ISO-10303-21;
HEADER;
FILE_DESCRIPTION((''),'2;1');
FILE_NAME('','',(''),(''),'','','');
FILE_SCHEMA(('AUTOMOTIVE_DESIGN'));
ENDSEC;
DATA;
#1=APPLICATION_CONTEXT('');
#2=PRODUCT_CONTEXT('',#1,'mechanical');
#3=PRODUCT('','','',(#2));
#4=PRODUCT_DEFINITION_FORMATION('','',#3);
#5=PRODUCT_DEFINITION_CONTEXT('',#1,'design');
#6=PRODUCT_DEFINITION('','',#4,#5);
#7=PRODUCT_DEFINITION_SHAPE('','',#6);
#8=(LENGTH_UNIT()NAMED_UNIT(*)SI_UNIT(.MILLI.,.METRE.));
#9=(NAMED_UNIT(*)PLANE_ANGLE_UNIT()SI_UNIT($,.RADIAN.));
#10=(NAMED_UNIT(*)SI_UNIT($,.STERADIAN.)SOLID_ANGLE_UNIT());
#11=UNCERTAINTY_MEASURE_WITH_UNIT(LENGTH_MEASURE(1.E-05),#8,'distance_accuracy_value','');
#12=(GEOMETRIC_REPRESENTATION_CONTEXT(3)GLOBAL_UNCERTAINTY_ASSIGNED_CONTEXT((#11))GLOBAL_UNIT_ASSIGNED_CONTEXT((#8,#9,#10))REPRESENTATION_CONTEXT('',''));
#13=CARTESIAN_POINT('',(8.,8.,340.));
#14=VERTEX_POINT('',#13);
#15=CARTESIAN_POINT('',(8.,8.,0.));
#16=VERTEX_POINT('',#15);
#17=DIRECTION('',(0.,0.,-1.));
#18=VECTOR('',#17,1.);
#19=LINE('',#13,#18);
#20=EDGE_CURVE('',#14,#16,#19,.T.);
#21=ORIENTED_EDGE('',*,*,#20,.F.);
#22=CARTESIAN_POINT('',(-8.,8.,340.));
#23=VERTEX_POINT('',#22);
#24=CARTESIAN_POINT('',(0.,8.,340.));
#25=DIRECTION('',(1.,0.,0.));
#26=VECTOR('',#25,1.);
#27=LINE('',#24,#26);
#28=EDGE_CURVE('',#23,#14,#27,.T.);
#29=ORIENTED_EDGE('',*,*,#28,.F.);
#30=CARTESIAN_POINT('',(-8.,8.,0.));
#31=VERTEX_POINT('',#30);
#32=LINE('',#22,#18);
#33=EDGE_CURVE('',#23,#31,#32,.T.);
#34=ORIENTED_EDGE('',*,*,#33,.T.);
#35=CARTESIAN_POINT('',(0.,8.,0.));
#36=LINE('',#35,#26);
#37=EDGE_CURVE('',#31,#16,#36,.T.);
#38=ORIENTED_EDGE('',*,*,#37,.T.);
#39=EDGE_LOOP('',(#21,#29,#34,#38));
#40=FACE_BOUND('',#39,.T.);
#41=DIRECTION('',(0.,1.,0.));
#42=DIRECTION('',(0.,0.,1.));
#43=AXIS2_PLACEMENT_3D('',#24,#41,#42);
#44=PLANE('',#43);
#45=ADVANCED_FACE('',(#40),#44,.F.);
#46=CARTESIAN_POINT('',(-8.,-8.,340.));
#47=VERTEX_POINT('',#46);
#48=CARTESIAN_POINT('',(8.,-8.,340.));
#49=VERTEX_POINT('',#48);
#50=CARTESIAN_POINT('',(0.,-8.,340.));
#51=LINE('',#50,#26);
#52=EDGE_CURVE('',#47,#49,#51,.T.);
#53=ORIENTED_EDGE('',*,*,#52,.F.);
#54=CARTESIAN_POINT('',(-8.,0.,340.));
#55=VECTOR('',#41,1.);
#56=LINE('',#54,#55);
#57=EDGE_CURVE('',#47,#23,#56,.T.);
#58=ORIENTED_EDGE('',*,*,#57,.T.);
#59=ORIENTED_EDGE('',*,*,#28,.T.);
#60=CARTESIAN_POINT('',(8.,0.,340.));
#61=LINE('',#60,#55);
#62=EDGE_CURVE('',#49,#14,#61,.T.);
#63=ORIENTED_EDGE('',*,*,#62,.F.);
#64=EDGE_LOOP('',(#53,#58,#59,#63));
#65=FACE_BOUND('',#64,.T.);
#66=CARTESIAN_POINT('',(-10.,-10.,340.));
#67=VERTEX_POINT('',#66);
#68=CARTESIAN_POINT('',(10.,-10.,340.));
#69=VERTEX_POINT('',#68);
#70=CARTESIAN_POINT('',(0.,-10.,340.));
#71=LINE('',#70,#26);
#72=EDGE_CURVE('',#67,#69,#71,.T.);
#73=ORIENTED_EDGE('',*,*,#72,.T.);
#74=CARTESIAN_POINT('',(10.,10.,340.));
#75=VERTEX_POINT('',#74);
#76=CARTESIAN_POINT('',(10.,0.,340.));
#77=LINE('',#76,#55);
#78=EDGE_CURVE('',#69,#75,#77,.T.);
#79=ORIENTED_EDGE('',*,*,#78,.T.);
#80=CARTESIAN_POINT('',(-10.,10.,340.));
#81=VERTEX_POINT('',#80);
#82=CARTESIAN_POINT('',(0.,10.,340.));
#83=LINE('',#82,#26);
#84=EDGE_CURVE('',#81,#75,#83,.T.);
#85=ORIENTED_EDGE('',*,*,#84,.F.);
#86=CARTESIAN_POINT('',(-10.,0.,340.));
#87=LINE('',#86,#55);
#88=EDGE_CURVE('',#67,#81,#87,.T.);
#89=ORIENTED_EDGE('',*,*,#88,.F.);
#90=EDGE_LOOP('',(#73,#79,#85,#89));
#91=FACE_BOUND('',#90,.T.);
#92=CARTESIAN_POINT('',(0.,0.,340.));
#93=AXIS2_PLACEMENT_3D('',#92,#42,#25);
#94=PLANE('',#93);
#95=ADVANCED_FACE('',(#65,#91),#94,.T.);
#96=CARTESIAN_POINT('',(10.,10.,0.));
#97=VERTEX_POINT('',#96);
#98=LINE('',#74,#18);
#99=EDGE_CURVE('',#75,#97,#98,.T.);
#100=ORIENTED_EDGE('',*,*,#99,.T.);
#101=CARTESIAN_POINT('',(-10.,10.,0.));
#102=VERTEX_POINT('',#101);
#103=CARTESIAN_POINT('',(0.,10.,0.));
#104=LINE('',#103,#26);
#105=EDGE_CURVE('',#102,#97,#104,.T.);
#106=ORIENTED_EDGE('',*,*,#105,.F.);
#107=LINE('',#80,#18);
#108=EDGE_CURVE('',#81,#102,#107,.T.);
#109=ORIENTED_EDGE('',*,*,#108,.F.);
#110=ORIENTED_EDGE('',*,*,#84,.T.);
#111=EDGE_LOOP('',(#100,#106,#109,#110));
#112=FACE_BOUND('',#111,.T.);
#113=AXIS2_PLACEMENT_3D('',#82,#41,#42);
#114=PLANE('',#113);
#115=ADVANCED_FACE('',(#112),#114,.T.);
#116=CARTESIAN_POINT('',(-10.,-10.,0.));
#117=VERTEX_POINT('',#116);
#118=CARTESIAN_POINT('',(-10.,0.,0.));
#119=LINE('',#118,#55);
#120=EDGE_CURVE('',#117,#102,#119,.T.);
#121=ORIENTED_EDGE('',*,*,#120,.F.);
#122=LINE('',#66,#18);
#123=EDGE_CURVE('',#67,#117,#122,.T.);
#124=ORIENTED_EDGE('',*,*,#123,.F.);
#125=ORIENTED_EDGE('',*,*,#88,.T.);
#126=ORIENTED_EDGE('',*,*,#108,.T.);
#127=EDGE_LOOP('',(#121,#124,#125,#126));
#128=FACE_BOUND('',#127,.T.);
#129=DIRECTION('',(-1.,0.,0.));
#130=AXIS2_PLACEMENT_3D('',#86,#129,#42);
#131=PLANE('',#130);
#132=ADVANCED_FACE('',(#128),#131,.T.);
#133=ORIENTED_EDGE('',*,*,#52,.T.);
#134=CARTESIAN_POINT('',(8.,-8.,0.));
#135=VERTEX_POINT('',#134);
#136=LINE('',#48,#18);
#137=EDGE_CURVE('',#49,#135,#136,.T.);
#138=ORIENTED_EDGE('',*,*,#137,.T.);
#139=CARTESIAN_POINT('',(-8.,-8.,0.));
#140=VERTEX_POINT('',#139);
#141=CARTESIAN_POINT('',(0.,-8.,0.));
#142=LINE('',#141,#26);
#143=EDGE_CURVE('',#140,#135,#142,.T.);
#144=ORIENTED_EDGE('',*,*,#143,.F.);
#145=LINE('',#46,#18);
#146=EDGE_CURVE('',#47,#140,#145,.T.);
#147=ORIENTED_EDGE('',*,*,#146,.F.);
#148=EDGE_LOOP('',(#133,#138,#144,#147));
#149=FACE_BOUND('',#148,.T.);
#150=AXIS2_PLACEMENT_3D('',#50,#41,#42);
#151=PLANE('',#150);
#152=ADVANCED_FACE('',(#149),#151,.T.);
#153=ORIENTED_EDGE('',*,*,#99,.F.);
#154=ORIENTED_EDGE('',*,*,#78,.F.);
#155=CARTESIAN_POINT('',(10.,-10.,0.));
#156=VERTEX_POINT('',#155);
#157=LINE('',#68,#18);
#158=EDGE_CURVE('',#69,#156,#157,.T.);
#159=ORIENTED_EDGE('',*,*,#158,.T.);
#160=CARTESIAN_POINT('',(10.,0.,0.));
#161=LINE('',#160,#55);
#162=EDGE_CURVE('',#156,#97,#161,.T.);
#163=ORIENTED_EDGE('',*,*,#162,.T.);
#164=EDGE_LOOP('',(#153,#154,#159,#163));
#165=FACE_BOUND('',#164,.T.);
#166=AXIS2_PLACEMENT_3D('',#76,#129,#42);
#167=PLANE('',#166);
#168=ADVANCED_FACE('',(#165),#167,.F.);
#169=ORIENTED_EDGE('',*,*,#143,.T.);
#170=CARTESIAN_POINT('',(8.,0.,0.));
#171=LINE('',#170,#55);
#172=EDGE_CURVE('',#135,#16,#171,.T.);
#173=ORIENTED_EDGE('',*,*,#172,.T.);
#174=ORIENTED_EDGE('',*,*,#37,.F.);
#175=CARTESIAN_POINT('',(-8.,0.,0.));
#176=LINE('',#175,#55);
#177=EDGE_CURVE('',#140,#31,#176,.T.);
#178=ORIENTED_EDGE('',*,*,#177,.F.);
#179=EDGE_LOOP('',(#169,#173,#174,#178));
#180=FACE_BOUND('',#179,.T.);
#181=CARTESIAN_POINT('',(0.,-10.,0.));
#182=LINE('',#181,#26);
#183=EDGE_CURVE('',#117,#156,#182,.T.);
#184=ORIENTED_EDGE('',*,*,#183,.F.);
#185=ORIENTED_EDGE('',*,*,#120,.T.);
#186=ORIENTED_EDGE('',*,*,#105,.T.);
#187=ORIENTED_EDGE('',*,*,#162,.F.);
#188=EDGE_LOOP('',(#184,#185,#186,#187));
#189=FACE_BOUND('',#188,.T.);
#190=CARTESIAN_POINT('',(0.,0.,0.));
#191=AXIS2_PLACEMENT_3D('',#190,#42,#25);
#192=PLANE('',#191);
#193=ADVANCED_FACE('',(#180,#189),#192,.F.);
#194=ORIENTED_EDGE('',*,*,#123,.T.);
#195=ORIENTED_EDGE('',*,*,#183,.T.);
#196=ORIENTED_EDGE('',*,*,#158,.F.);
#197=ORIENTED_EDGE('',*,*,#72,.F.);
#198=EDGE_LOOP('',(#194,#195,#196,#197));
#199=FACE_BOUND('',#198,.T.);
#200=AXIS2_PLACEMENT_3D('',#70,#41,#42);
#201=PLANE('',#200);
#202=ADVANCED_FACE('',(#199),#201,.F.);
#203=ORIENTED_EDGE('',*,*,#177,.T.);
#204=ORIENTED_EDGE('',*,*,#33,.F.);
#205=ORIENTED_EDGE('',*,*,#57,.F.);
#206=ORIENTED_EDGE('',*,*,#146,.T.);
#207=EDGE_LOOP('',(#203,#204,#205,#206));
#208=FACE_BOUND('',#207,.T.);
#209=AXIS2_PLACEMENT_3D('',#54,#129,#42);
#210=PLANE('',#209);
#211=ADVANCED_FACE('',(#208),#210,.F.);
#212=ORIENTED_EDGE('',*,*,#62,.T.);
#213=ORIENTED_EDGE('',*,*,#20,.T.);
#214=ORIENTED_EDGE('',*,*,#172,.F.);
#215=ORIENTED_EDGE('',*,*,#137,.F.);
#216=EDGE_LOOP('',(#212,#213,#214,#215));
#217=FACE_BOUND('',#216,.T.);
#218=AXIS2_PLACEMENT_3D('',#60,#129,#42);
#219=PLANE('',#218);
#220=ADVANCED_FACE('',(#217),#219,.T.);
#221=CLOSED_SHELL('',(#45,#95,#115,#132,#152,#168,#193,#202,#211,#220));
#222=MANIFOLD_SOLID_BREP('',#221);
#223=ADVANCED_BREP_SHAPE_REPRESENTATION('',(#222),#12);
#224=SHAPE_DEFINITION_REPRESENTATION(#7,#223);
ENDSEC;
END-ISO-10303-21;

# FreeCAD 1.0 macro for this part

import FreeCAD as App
import Part
import Sketcher

V = App.Vector

doc = App.newDocument("Part")
body = doc.addObject("PartDesign::Body", "Body")

sketch1 = body.newObject("Sketcher::SketchObject", "Sketch")
sketch1.AttachmentSupport = (doc.getObject("XY_Plane"), [""])
sketch1.MapMode = "FlatFace"
sketch1.addGeometry([
    Part.LineSegment(V(-10, 10, 0), V(-10, -10, 0)),
    Part.LineSegment(V(-10, -10, 0), V(10, -10, 0)),
    Part.LineSegment(V(10, -10, 0), V(10, 10, 0)),
    Part.LineSegment(V(10, 10, 0), V(-10, 10, 0)),
    Part.LineSegment(V(8, -8, 0), V(-8, -8, 0)),
    Part.LineSegment(V(-8, -8, 0), V(-8, 8, 0)),
    Part.LineSegment(V(-8, 8, 0), V(8, 8, 0)),
    Part.LineSegment(V(8, 8, 0), V(8, -8, 0)),
], False)
sketch1.addConstraint([
    Sketcher.Constraint("Coincident", 0, 2, 1, 1),
    Sketcher.Constraint("Coincident", 1, 2, 2, 1),
    Sketcher.Constraint("Coincident", 2, 2, 3, 1),
    Sketcher.Constraint("Coincident", 3, 2, 0, 1),
    Sketcher.Constraint("Coincident", 4, 2, 5, 1),
    Sketcher.Constraint("Coincident", 5, 2, 6, 1),
    Sketcher.Constraint("Coincident", 6, 2, 7, 1),
    Sketcher.Constraint("Coincident", 7, 2, 4, 1),
    Sketcher.Constraint("Vertical", 0),
    Sketcher.Constraint("Horizontal", 1),
    Sketcher.Constraint("Vertical", 2),
    Sketcher.Constraint("Horizontal", 3),
    Sketcher.Constraint("Horizontal", 4),
    Sketcher.Constraint("Vertical", 5),
    Sketcher.Constraint("Horizontal", 6),
    Sketcher.Constraint("Vertical", 7),
    Sketcher.Constraint("Symmetric", 0, 2, 2, 2, -1, 1),
    Sketcher.Constraint("Symmetric", 4, 2, 6, 2, -1, 1),
    Sketcher.Constraint("Equal", 3, 0),
    Sketcher.Constraint("Equal", 6, 5),
    Sketcher.Constraint("DistanceX", 1, 1, 1, 2, 20.0),
    Sketcher.Constraint("DistanceX", 4, 2, 4, 1, 16.0),
])
pad1 = body.newObject("PartDesign::Pad", "Pad")
pad1.Profile = sketch1
pad1.Length = 340

doc.recompute()
